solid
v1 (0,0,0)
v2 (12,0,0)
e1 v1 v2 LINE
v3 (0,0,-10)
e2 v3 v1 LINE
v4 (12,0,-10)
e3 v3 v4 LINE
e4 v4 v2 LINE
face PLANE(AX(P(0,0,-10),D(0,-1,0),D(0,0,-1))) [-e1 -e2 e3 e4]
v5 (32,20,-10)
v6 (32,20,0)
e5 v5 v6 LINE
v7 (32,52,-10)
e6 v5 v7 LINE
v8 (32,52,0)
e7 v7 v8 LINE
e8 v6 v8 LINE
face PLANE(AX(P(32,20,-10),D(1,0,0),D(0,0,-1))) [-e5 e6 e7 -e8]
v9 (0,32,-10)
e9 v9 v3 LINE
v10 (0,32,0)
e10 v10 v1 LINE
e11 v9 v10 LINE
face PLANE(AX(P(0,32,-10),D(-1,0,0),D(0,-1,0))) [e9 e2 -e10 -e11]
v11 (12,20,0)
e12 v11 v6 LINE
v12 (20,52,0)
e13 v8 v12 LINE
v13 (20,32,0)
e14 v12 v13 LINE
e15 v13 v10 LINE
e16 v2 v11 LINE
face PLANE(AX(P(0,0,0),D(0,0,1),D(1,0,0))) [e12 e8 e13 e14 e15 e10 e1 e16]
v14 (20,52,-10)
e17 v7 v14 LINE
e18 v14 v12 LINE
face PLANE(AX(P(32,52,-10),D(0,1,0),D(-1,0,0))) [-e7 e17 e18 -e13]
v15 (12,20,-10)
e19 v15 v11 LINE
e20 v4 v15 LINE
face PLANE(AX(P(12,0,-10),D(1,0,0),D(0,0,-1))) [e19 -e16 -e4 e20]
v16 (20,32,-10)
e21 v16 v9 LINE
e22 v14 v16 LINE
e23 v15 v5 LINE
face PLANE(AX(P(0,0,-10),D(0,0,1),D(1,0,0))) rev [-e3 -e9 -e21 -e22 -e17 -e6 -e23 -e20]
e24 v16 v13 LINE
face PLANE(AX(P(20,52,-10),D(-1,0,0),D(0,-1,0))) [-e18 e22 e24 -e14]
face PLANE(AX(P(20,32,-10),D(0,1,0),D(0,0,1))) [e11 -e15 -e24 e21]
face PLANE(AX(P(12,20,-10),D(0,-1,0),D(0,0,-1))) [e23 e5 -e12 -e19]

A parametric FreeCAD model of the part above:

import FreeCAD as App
import Part
import Sketcher
Q = App.Units.Quantity

doc = App.newDocument("Part")
params = doc.addObject("Spreadsheet::Sheet", "Params")
for row, (alias, value) in enumerate([
    ("sketch1_width", "12 mm"),
    ("sketch1_width2", "20 mm"),
    ("sketch1_height", "32 mm"),
    ("pad1_length", "10 mm"),
], start=1):
    params.set(f"A{row}", alias)
    params.set(f"B{row}", "=" + value)
    params.setAlias(f"B{row}", alias)

body = doc.addObject("PartDesign::Body", "Body")

# Sketch on XY plane
sketch1 = doc.addObject("Sketcher::SketchObject", "Sketch")
body.addObject(sketch1)
sketch1.AttachmentSupport = (doc.XY_Plane, [""])
sketch1.MapMode = "FlatFace"
sketch1.addGeometry(Part.LineSegment(App.Vector(0, 0, 0), App.Vector(12, 0, 0)), False)
sketch1.addGeometry(Part.LineSegment(App.Vector(12, 0, 0), App.Vector(12, 20, 0)), False)
sketch1.addGeometry(Part.LineSegment(App.Vector(12, 20, 0), App.Vector(32, 20, 0)), False)
sketch1.addGeometry(Part.LineSegment(App.Vector(32, 20, 0), App.Vector(32, 52, 0)), False)
sketch1.addGeometry(Part.LineSegment(App.Vector(32, 52, 0), App.Vector(20, 52, 0)), False)
sketch1.addGeometry(Part.LineSegment(App.Vector(20, 52, 0), App.Vector(20, 32, 0)), False)
sketch1.addGeometry(Part.LineSegment(App.Vector(20, 32, 0), App.Vector(0, 32, 0)), False)
sketch1.addGeometry(Part.LineSegment(App.Vector(0, 32, 0), App.Vector(0, 0, 0)), False)
sketch1.addConstraint(Sketcher.Constraint("Coincident", 0, 2, 1, 1))
sketch1.addConstraint(Sketcher.Constraint("Coincident", 1, 2, 2, 1))
sketch1.addConstraint(Sketcher.Constraint("Coincident", 2, 2, 3, 1))
sketch1.addConstraint(Sketcher.Constraint("Coincident", 3, 2, 4, 1))
sketch1.addConstraint(Sketcher.Constraint("Coincident", 4, 2, 5, 1))
sketch1.addConstraint(Sketcher.Constraint("Coincident", 5, 2, 6, 1))
sketch1.addConstraint(Sketcher.Constraint("Coincident", 6, 2, 7, 1))
sketch1.addConstraint(Sketcher.Constraint("Coincident", 7, 2, 0, 1))
sketch1.addConstraint(Sketcher.Constraint("Horizontal", 0))
sketch1.addConstraint(Sketcher.Constraint("Vertical", 1))
sketch1.addConstraint(Sketcher.Constraint("Horizontal", 2))
sketch1.addConstraint(Sketcher.Constraint("Vertical", 3))
sketch1.addConstraint(Sketcher.Constraint("Horizontal", 4))
sketch1.addConstraint(Sketcher.Constraint("Vertical", 5))
sketch1.addConstraint(Sketcher.Constraint("Horizontal", 6))
sketch1.addConstraint(Sketcher.Constraint("Vertical", 7))
sketch1.addConstraint(Sketcher.Constraint("Coincident", 7, 2, -1, 1))
sketch1.addConstraint(Sketcher.Constraint("Equal", 0, 4))
sketch1.addConstraint(Sketcher.Constraint("Equal", 6, 1))
sketch1.addConstraint(Sketcher.Constraint("Equal", 1, 5))
sketch1.addConstraint(Sketcher.Constraint("DistanceX", 0, 1, 0, 2, Q("12 mm")))
sketch1.addConstraint(Sketcher.Constraint("DistanceX", 2, 1, 2, 2, Q("20 mm")))
sketch1.addConstraint(Sketcher.Constraint("DistanceY", 3, 1, 3, 2, Q("32 mm")))
sketch1.setExpression("Constraints[20]", "Params.sketch1_width")
sketch1.setExpression("Constraints[21]", "Params.sketch1_width2")
sketch1.setExpression("Constraints[22]", "Params.sketch1_height")
pad1 = doc.addObject("PartDesign::Pad", "Pad")
body.addObject(pad1)
pad1.Profile = sketch1
pad1.setExpression("Length", "Params.pad1_length")
pad1.Reversed = True

doc.recompute()
